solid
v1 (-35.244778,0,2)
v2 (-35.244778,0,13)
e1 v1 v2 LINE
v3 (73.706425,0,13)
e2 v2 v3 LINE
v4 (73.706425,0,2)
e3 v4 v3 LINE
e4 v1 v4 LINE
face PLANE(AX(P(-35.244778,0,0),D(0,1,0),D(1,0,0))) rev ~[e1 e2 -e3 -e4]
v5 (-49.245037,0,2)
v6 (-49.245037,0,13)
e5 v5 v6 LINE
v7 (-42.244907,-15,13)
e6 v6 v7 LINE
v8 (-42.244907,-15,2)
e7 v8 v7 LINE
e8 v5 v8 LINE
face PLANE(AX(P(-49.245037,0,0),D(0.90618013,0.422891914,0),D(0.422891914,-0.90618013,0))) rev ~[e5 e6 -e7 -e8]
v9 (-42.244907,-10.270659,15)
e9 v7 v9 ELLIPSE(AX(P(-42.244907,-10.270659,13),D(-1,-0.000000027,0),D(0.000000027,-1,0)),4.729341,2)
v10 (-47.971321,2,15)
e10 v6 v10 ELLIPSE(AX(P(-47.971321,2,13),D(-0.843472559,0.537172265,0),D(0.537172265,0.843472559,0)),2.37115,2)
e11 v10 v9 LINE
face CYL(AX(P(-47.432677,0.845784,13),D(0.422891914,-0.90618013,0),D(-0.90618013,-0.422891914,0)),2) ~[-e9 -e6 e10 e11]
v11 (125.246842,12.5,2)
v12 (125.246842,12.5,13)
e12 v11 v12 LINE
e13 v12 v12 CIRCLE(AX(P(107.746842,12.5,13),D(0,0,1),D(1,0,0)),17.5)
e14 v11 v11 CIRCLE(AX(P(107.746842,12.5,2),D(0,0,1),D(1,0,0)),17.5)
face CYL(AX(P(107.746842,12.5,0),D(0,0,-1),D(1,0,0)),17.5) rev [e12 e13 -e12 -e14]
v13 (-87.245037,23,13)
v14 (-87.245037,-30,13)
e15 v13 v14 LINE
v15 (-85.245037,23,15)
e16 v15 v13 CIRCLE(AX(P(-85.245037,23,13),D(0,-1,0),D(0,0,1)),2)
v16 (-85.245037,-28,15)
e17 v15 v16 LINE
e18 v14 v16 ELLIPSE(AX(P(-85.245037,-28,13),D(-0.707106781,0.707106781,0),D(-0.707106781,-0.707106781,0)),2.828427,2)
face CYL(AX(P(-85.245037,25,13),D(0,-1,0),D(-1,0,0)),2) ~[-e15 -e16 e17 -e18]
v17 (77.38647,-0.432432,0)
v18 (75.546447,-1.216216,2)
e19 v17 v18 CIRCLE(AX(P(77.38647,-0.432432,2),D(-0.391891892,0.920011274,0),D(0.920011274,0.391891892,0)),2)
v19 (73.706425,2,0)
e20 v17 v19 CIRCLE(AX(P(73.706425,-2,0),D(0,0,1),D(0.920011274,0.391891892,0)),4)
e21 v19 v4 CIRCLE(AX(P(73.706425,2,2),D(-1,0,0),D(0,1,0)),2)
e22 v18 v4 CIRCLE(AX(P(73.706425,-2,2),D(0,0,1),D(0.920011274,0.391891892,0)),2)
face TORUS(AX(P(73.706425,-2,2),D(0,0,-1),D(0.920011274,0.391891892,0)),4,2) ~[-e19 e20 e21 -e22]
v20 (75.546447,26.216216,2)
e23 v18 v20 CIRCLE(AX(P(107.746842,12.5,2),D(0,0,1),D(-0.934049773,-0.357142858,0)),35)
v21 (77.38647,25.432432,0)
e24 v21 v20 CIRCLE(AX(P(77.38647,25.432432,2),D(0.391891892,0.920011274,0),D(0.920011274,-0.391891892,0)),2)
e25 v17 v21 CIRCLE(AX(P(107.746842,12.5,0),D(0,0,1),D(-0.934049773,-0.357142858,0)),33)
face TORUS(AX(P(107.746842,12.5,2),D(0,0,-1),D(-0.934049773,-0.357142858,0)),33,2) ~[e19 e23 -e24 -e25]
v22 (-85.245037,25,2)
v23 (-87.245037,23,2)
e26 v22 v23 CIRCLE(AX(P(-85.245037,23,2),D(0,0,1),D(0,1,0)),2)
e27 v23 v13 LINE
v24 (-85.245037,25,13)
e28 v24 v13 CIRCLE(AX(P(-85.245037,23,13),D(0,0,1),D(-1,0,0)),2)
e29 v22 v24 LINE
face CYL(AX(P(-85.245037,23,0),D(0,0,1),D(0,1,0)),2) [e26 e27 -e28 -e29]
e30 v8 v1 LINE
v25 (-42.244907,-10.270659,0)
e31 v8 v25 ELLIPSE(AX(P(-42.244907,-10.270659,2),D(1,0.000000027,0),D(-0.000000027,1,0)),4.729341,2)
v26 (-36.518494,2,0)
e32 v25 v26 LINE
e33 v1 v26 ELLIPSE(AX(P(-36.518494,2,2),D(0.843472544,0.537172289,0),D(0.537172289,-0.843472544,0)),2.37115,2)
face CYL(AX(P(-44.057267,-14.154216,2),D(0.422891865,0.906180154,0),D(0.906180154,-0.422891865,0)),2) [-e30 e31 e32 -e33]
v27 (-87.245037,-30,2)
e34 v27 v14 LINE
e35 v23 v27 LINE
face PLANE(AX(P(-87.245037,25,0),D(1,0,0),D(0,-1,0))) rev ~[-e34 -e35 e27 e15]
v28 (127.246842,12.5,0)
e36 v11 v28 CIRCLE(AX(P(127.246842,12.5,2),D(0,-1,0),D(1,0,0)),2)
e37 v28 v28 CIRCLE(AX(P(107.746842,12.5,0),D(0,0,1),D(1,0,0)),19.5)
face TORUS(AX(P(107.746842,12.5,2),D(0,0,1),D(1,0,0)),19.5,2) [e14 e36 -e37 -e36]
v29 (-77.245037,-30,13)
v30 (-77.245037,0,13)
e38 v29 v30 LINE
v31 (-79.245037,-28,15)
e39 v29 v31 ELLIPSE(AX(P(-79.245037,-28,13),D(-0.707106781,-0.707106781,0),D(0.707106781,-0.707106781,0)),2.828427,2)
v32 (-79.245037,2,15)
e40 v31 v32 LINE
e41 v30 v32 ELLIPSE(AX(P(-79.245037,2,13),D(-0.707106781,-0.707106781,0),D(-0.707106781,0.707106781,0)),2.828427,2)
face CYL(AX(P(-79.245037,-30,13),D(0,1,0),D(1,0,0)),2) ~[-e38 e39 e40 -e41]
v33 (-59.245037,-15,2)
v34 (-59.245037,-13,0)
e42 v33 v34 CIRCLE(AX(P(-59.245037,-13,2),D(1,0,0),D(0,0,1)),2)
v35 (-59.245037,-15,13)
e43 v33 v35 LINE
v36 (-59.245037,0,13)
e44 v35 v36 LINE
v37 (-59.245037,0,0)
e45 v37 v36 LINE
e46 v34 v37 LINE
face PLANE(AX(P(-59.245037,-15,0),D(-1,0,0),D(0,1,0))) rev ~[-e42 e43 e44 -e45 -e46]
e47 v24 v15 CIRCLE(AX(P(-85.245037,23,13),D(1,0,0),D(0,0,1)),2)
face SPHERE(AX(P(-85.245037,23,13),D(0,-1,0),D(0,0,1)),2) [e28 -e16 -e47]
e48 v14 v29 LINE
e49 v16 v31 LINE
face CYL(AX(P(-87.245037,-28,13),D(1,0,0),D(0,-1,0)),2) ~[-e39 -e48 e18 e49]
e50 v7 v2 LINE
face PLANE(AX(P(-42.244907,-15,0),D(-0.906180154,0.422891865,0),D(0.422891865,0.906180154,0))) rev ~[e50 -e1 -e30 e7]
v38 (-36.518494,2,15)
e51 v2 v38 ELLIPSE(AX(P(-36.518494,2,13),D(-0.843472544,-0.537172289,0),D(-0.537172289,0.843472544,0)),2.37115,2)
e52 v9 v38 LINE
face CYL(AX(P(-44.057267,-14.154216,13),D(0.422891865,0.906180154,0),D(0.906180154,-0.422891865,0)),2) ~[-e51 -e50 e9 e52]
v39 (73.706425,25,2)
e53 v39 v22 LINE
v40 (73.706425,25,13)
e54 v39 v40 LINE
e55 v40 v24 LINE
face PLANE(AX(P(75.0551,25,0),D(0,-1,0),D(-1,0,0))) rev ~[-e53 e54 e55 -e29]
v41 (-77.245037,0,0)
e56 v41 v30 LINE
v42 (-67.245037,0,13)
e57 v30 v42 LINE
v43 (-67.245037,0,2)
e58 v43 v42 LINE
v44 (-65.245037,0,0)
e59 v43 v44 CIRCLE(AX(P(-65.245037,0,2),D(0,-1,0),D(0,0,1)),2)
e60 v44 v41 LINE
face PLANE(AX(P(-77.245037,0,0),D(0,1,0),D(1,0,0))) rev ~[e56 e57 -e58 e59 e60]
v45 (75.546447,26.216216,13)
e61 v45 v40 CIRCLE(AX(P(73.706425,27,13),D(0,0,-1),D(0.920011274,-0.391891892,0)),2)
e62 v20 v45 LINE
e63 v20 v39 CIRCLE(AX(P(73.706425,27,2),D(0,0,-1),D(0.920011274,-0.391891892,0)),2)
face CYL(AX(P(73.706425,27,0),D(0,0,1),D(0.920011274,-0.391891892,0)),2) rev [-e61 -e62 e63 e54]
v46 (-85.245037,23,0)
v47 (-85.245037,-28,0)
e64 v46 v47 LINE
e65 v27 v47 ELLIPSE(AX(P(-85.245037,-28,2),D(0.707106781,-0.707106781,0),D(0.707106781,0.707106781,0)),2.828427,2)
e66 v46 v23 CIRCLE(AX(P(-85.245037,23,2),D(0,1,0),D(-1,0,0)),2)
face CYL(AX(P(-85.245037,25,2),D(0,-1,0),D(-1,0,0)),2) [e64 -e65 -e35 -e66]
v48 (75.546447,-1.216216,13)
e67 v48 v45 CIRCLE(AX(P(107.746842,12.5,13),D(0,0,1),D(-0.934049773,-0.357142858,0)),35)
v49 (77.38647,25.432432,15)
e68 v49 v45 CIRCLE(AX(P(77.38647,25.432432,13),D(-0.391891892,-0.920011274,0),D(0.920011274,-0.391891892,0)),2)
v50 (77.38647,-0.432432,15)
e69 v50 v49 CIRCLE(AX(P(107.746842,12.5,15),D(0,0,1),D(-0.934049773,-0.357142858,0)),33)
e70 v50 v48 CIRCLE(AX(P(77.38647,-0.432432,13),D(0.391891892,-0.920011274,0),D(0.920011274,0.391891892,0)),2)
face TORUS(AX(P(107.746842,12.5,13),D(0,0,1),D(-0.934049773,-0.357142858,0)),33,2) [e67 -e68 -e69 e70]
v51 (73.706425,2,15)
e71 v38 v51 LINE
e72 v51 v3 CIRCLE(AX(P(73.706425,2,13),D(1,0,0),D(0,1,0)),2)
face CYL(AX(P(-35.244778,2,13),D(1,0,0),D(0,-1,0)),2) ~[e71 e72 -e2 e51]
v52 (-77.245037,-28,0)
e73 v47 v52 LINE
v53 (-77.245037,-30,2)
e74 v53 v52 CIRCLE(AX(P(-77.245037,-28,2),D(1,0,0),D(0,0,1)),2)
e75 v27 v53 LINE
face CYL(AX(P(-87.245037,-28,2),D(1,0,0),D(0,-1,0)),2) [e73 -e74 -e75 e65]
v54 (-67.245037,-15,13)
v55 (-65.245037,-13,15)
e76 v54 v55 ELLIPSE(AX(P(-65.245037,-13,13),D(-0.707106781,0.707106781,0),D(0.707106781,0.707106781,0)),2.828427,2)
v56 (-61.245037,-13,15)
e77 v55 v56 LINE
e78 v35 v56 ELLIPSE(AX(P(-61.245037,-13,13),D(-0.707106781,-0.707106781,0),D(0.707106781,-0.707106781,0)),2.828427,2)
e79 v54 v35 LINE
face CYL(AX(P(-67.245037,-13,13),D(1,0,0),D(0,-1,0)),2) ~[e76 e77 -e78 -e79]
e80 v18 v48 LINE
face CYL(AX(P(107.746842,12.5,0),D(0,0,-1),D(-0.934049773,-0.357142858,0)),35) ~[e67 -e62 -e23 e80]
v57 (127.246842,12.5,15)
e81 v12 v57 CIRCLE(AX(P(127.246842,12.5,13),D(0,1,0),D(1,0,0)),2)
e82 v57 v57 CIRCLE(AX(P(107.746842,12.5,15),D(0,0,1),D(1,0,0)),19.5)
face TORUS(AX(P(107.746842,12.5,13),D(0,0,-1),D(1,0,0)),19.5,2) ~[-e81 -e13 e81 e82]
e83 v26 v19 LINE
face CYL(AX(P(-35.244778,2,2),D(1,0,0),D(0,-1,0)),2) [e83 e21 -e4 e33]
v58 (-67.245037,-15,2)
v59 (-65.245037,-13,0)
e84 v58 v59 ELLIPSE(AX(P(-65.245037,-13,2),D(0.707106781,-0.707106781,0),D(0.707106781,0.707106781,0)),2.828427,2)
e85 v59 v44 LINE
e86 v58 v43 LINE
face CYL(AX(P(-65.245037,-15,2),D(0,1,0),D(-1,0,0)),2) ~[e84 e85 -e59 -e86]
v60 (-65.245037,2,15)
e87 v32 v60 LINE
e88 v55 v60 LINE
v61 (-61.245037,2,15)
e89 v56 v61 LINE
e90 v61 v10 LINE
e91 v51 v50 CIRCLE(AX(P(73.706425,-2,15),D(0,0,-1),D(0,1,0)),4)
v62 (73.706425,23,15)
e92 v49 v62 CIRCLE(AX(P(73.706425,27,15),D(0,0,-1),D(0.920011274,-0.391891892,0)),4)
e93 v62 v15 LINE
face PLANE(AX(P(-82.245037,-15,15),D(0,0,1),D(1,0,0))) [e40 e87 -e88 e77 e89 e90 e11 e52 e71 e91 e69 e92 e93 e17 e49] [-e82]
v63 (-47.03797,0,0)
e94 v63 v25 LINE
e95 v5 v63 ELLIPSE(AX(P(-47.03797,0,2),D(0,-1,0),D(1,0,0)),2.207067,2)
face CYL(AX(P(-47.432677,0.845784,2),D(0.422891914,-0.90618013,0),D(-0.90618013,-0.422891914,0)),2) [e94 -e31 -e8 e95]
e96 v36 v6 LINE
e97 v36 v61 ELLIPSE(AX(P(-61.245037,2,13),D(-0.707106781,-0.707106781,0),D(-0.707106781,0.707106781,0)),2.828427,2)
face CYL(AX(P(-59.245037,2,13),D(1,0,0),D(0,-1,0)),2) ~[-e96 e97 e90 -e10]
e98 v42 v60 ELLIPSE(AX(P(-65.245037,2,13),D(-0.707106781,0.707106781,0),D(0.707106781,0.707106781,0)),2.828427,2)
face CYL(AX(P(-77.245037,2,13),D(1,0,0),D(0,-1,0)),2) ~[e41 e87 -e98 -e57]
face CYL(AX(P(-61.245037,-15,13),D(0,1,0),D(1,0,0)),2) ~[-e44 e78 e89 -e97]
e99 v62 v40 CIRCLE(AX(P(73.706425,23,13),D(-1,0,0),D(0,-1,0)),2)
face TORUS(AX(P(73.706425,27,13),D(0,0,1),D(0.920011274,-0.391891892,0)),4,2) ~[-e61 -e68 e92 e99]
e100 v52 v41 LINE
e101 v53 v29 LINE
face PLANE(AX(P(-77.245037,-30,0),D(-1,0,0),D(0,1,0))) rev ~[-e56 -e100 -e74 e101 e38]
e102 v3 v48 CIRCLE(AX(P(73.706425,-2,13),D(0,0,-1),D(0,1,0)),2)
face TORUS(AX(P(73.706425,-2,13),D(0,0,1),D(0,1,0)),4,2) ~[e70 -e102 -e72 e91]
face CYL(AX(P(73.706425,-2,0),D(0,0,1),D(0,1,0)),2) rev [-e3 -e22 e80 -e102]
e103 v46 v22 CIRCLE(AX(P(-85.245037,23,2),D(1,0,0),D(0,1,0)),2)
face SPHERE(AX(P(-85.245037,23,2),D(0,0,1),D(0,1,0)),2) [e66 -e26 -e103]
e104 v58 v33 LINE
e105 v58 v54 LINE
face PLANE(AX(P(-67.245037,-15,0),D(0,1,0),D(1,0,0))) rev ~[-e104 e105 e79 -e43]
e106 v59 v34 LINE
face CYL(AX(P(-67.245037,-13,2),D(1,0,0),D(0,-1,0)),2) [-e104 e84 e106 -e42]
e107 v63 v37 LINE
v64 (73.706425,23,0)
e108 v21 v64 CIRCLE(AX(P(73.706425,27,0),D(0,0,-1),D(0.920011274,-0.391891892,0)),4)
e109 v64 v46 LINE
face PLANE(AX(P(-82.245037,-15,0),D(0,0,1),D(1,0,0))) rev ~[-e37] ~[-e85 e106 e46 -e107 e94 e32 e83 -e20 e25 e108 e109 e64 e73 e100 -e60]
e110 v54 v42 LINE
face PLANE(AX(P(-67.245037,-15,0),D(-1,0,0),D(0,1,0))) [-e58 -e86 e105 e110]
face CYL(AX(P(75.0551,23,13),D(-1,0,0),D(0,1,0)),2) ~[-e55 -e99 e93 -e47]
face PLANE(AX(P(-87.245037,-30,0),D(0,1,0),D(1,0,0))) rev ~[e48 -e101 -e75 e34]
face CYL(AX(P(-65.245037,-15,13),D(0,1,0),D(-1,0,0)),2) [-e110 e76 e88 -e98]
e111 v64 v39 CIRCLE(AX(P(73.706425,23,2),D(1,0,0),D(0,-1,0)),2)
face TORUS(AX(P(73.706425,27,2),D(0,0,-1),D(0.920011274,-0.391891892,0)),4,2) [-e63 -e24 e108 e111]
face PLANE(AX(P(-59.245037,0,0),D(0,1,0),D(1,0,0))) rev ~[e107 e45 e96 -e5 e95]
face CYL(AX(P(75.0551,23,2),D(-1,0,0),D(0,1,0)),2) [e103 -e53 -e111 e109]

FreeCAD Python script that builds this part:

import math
import FreeCAD as App
import Part
import Sketcher


def edges_at(feature, points):
    """Names of the edges that pass closest to the given points."""
    edges = feature.Shape.Edges
    near = lambda p: min(range(len(edges)), key=lambda i: edges[i].distToShape(Part.Vertex(*p))[0])
    return sorted({f"Edge{near(p) + 1}" for p in points})

doc = App.newDocument("Part")
body = doc.addObject("PartDesign::Body", "Body")

# Sketch on XY plane
sketch1 = body.newObject("Sketcher::SketchObject", "Sketch")
sketch1.AttachmentSupport = (doc.getObject("XY_Plane"), [""])
sketch1.MapMode = "FlatFace"
sketch1.addGeometry(Part.LineSegment(App.Vector(-87, -30, 0), App.Vector(-77, -30, 0)), False)
sketch1.addGeometry(Part.LineSegment(App.Vector(-77, -30, 0), App.Vector(-77, 0, 0)), False)
sketch1.addGeometry(Part.LineSegment(App.Vector(-77, 0, 0), App.Vector(-67, 0, 0)), False)
sketch1.addGeometry(Part.LineSegment(App.Vector(-67, 0, 0), App.Vector(-67, -15, 0)), False)
sketch1.addGeometry(Part.LineSegment(App.Vector(-67, -15, 0), App.Vector(-59, -15, 0)), False)
sketch1.addGeometry(Part.LineSegment(App.Vector(-59, -15, 0), App.Vector(-59, 0, 0)), False)
sketch1.addGeometry(Part.LineSegment(App.Vector(-59, 0, 0), App.Vector(-49, 0, 0)), False)
sketch1.addGeometry(Part.LineSegment(App.Vector(-49, 0, 0), App.Vector(-42, -15, 0)), False)
sketch1.addGeometry(Part.LineSegment(App.Vector(-42, -15, 0), App.Vector(-35, 0, 0)), False)
sketch1.addGeometry(Part.LineSegment(App.Vector(-35, 0, 0), App.Vector(75, 0, 0)), False)
sketch1.addGeometry(Part.ArcOfCircle(Part.Circle(App.Vector(108, 12, 0), App.Vector(0, 0, 1), 35), math.radians(-159), math.radians(159)), False)
sketch1.addGeometry(Part.LineSegment(App.Vector(75, 25, 0), App.Vector(-87, 25, 0)), False)
sketch1.addGeometry(Part.LineSegment(App.Vector(-87, 25, 0), App.Vector(-87, -30, 0)), False)
sketch1.addGeometry(Part.Circle(App.Vector(108, 12, 0), App.Vector(0, 0, 1), 18), False)
sketch1.addConstraint(Sketcher.Constraint("Coincident", 0, 2, 1, 1))
sketch1.addConstraint(Sketcher.Constraint("Coincident", 1, 2, 2, 1))
sketch1.addConstraint(Sketcher.Constraint("Coincident", 2, 2, 3, 1))
sketch1.addConstraint(Sketcher.Constraint("Coincident", 3, 2, 4, 1))
sketch1.addConstraint(Sketcher.Constraint("Coincident", 4, 2, 5, 1))
sketch1.addConstraint(Sketcher.Constraint("Coincident", 5, 2, 6, 1))
sketch1.addConstraint(Sketcher.Constraint("Coincident", 6, 2, 7, 1))
sketch1.addConstraint(Sketcher.Constraint("Coincident", 7, 2, 8, 1))
sketch1.addConstraint(Sketcher.Constraint("Coincident", 8, 2, 9, 1))
sketch1.addConstraint(Sketcher.Constraint("Coincident", 9, 2, 10, 1))
sketch1.addConstraint(Sketcher.Constraint("Coincident", 10, 2, 11, 1))
sketch1.addConstraint(Sketcher.Constraint("Coincident", 11, 2, 12, 1))
sketch1.addConstraint(Sketcher.Constraint("Coincident", 12, 2, 0, 1))
sketch1.addConstraint(Sketcher.Constraint("Horizontal", 0))
sketch1.addConstraint(Sketcher.Constraint("Vertical", 1))
sketch1.addConstraint(Sketcher.Constraint("Horizontal", 2))
sketch1.addConstraint(Sketcher.Constraint("Vertical", 3))
sketch1.addConstraint(Sketcher.Constraint("Horizontal", 4))
sketch1.addConstraint(Sketcher.Constraint("Vertical", 5))
sketch1.addConstraint(Sketcher.Constraint("Horizontal", 6))
sketch1.addConstraint(Sketcher.Constraint("Horizontal", 9))
sketch1.addConstraint(Sketcher.Constraint("Horizontal", 11))
sketch1.addConstraint(Sketcher.Constraint("Vertical", 12))
sketch1.addConstraint(Sketcher.Constraint("Coincident", 13, 3, 10, 3))
sketch1.addConstraint(Sketcher.Constraint("PointOnObject", 1, 2, -1))
sketch1.addConstraint(Sketcher.Constraint("PointOnObject", 5, 2, -1))
sketch1.addConstraint(Sketcher.Constraint("PointOnObject", 8, 2, -1))
sketch1.addConstraint(Sketcher.Constraint("Horizontal", 4, 2, 7, 2))
sketch1.addConstraint(Sketcher.Constraint("Vertical", 9, 2, 10, 2))
sketch1.addConstraint(Sketcher.Constraint("Equal", 0, 2))
sketch1.addConstraint(Sketcher.Constraint("Equal", 2, 6))
sketch1.addConstraint(Sketcher.Constraint("Equal", 7, 8))
sketch1.addConstraint(Sketcher.Constraint("Diameter", 13, 35.0))
sketch1.addConstraint(Sketcher.Constraint("Radius", 10, 35.0))
sketch1.addConstraint(Sketcher.Constraint("DistanceX", 0, 1, 0, 2, 10.0))
sketch1.addConstraint(Sketcher.Constraint("DistanceX", 4, 1, 4, 2, 8.0))
sketch1.addConstraint(Sketcher.Constraint("DistanceY", 1, 1, 1, 2, 30.0))
sketch1.addConstraint(Sketcher.Constraint("DistanceY", 3, 2, 3, 1, 15.0))
sketch1.addConstraint(Sketcher.Constraint("DistanceY", 12, 2, 12, 1, 55.0))
sketch1.addConstraint(Sketcher.Constraint("Distance", 7, 16.553))
sketch1.addConstraint(Sketcher.Constraint("DistanceX", -1, 1, 9, 2, 75.0551))
sketch1.addConstraint(Sketcher.Constraint("DistanceX", 9, 1, 9, 2, 110.299878))
pad1 = body.newObject("PartDesign::Pad", "Pad")
pad1.Profile = sketch1
pad1.Length = 15
doc.recompute()

fillet = body.newObject("PartDesign::Fillet", "Fillet")
fillet.Base = (pad1, edges_at(pad1, [
    (-87.245, -2.5, 15),
    (-82.245, -30, 15),
    (-77.245, -15, 15),
    (-72.245, 0, 15),
    (-67.245, -7.5, 15),
    (-63.245, -15, 15),
    (-59.245, -7.5, 15),
    (-54.245, 0, 15),
    (-45.745, -7.5, 15),
    (-38.745, -7.5, 15),
    (19.905, 0, 15),
    (142.747, 12.5, 15),
    (-6.095, 25, 15),
    (90.247, 12.5, 15),
    (19.905, 0, 0),
    (75.055, 0, 7.5),
    (75.055, 25, 7.5),
    (142.747, 12.5, 0),
    (-38.745, -7.5, 0),
    (-45.745, -7.5, 0),
    (-63.245, -15, 0),
    (-82.245, -30, 0),
    (-87.245, 25, 7.5),
    (-6.095, 25, 0),
    (-67.245, -7.5, 0),
    (-87.245, -2.5, 0),
    (90.247, 12.5, 0),
]))
fillet.Radius = 2

doc.recompute()
